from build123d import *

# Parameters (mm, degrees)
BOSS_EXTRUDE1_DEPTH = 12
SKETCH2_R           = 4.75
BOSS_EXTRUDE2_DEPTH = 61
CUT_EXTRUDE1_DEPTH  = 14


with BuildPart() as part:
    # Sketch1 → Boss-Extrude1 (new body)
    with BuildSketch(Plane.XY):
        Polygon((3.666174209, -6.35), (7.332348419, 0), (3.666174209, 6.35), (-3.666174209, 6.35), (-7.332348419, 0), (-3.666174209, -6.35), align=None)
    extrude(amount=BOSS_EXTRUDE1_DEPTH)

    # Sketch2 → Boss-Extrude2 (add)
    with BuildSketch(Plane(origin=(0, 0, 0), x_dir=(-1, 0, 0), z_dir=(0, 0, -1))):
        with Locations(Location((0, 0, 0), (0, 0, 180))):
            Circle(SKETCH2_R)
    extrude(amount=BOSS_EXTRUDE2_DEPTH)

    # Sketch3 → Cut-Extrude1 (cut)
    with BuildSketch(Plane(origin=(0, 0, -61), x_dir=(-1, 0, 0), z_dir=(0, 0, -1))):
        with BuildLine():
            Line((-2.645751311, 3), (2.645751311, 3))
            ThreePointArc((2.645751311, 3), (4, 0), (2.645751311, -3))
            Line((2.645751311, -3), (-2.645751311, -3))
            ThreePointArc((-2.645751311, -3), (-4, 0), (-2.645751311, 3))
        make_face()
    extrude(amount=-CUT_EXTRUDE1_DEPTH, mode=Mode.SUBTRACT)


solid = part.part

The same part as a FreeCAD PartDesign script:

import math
import FreeCAD as App
import Part
import Sketcher
Q = App.Units.Quantity

doc = App.newDocument("Part")
body = doc.addObject("PartDesign::Body", "Body")

sketch1 = body.newObject("Sketcher::SketchObject", "Sketch")
sketch1.AttachmentSupport = (doc.getObject("XY_Plane"), [""])
sketch1.MapMode = "FlatFace"
sketch1.addGeometry([
    Part.LineSegment(App.Vector(3.666174, -6.35, 0), App.Vector(7.332348, 0, 0)),
    Part.LineSegment(App.Vector(7.332348, 0, 0), App.Vector(3.666174, 6.35, 0)),
    Part.LineSegment(App.Vector(3.666174, 6.35, 0), App.Vector(-3.666174, 6.35, 0)),
    Part.LineSegment(App.Vector(-3.666174, 6.35, 0), App.Vector(-7.332348, 0, 0)),
    Part.LineSegment(App.Vector(-7.332348, 0, 0), App.Vector(-3.666174, -6.35, 0)),
    Part.LineSegment(App.Vector(-3.666174, -6.35, 0), App.Vector(3.666174, -6.35, 0)),
], False)
sketch1.addConstraint([
    Sketcher.Constraint("Coincident", 0, 2, 1, 1),
    Sketcher.Constraint("Coincident", 1, 2, 2, 1),
    Sketcher.Constraint("Coincident", 2, 2, 3, 1),
    Sketcher.Constraint("Coincident", 3, 2, 4, 1),
    Sketcher.Constraint("Coincident", 4, 2, 5, 1),
    Sketcher.Constraint("Coincident", 5, 2, 0, 1),
    Sketcher.Constraint("Horizontal", 2),
    Sketcher.Constraint("Horizontal", 5),
    Sketcher.Constraint("Symmetric", 0, 2, 3, 2, -1, 1),
    Sketcher.Constraint("Symmetric", 1, 2, 4, 2, -1, 1),
    Sketcher.Constraint("PointOnObject", 0, 2, -1),
    Sketcher.Constraint("Parallel", 0, 3),
    Sketcher.Constraint("Vertical", 2, 2, 4, 2),
    Sketcher.Constraint("Angle", 0, Q("60 deg")),
    Sketcher.Constraint("DistanceY", 4, 2, 2, 2, Q("12.7 mm")),
    Sketcher.Constraint("DistanceX", 2, 2, 2, 1, Q("7.332348 mm")),
])
pad1 = body.newObject("PartDesign::Pad", "Pad")
pad1.Profile = sketch1
pad1.Length = 12

sketch2 = body.newObject("Sketcher::SketchObject", "Sketch001")
sketch2.AttachmentSupport = (doc.getObject("XY_Plane"), [""])
sketch2.MapMode = "FlatFace"
sketch2.addGeometry(Part.Circle(App.Vector(0, 0, 0), App.Vector(0, 0, 1), 4.75), False)
sketch2.addConstraint([
    Sketcher.Constraint("Coincident", 0, 3, -1, 1),
    Sketcher.Constraint("Diameter", 0, Q("9.5 mm")),
])
pad2 = body.newObject("PartDesign::Pad", "Pad001")
pad2.Profile = sketch2
pad2.Length = 61
pad2.Reversed = True

sketch3 = body.newObject("Sketcher::SketchObject", "Sketch002")
sketch3.AttachmentSupport = (doc.getObject("XY_Plane"), [""])
sketch3.MapMode = "FlatFace"
sketch3.AttachmentOffset = App.Placement(App.Vector(0, 0, -61), App.Rotation())
sketch3.addGeometry([
    Part.LineSegment(App.Vector(-2.645751, 3, 0), App.Vector(2.645751, 3, 0)),
    Part.ArcOfCircle(Part.Circle(App.Vector(0, 0, 0), App.Vector(0, 0, 1), 4), math.radians(-48.590378), math.radians(48.590378)),
    Part.LineSegment(App.Vector(2.645751, -3, 0), App.Vector(-2.645751, -3, 0)),
    Part.ArcOfCircle(Part.Circle(App.Vector(0, 0, 0), App.Vector(0, 0, 1), 4), math.radians(131.409622), math.radians(228.590378)),
], False)
sketch3.addConstraint([
    Sketcher.Constraint("Coincident", 0, 2, 1, 2),
    Sketcher.Constraint("Coincident", 1, 1, 2, 1),
    Sketcher.Constraint("Coincident", 2, 2, 3, 2),
    Sketcher.Constraint("Coincident", 3, 1, 0, 1),
    Sketcher.Constraint("Horizontal", 0),
    Sketcher.Constraint("Horizontal", 2),
    Sketcher.Constraint("Coincident", 1, 3, -1, 1),
    Sketcher.Constraint("Coincident", 3, 3, -1, 1),
    Sketcher.Constraint("Equal", 1, 3),
    Sketcher.Constraint("Vertical", 0, 2, 1, 1),
    Sketcher.Constraint("Radius", 1, Q("4 mm")),
    Sketcher.Constraint("DistanceY", -1, 1, 0, 2, Q("3 mm")),
])
pocket1 = body.newObject("PartDesign::Pocket", "Pocket")
pocket1.Profile = sketch3
pocket1.Length = 14
pocket1.Reversed = True

doc.recompute()
